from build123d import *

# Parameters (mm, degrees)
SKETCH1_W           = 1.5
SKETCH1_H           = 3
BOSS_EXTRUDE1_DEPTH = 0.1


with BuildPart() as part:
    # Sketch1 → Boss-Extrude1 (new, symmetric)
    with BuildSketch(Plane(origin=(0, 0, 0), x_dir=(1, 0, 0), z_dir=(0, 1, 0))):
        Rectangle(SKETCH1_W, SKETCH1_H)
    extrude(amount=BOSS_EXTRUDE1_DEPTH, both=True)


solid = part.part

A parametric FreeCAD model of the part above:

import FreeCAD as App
import Part
import Sketcher

V = App.Vector


def add_polygon(sketch, points):
    """Adds a closed chain of lines whose ends are joined by coincident constraints."""
    first, n = sketch.GeometryCount, len(points)
    for a, b in zip(points, points[1:] + points[:1]):
        sketch.addGeometry(Part.LineSegment(App.Vector(*a, 0), App.Vector(*b, 0)), False)
    for i in range(n):
        sketch.addConstraint(Sketcher.Constraint("Coincident", first + i, 2, first + (i + 1) % n, 1))

doc = App.newDocument("Part")
body = doc.addObject("PartDesign::Body", "Body")

# Sketch on XZ plane
sketch1 = body.newObject("Sketcher::SketchObject", "Sketch")
sketch1.AttachmentSupport = (doc.getObject("XZ_Plane"), [""])
sketch1.MapMode = "FlatFace"
add_polygon(sketch1, [(-0.8, -1.5), (-0.8, 1.5), (0.8, 1.5), (0.8, -1.5)])  # lines 0-3
sketch1.addConstraint([
    Sketcher.Constraint("Vertical", 0),
    Sketcher.Constraint("Horizontal", 1),
    Sketcher.Constraint("Vertical", 2),
    Sketcher.Constraint("Horizontal", 3),
    Sketcher.Constraint("Symmetric", 0, 2, 2, 2, -1, 1),
    Sketcher.Constraint("DistanceY", 0, 1, 0, 2, 3.0),
    Sketcher.Constraint("DistanceX", 1, 1, 1, 2, 1.5),
])
pad1 = body.newObject("PartDesign::Pad", "Pad")
pad1.Profile = sketch1
pad1.Length = 0.2
pad1.Midplane = True

doc.recompute()
